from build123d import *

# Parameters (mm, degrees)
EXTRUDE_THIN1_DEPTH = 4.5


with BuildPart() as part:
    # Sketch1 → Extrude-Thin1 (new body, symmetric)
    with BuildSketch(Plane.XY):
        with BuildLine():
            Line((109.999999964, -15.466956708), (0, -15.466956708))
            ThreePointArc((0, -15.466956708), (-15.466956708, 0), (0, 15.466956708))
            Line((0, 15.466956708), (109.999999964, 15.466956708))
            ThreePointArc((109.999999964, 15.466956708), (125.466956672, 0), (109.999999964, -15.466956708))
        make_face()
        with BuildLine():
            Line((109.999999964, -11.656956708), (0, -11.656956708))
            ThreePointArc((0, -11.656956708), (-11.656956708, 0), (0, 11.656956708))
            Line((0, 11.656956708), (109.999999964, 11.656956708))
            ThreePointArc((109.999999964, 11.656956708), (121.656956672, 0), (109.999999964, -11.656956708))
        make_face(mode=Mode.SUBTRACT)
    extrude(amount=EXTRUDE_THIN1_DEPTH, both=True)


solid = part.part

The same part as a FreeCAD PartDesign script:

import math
import FreeCAD as App
import Part
import Sketcher
Q = App.Units.Quantity

doc = App.newDocument("Part")
body = doc.addObject("PartDesign::Body", "Body")

sketch1 = body.newObject("Sketcher::SketchObject", "Sketch")
sketch1.AttachmentSupport = (doc.getObject("XY_Plane"), [""])
sketch1.MapMode = "FlatFace"
sketch1.addGeometry([
    Part.LineSegment(App.Vector(0, -15, 0), App.Vector(110, -15, 0)),
    Part.ArcOfCircle(Part.Circle(App.Vector(110, 0, 0), App.Vector(0, 0, 1), 15), math.radians(-90), math.radians(90)),
    Part.LineSegment(App.Vector(110, 15, 0), App.Vector(0, 15, 0)),
    Part.ArcOfCircle(Part.Circle(App.Vector(0, 0, 0), App.Vector(0, 0, 1), 15), math.radians(90), math.radians(270)),
    Part.LineSegment(App.Vector(110, -12, 0), App.Vector(0, -12, 0)),
    Part.ArcOfCircle(Part.Circle(App.Vector(0, 0, 0), App.Vector(0, 0, 1), 12), math.radians(90), math.radians(270)),
    Part.LineSegment(App.Vector(0, 12, 0), App.Vector(110, 12, 0)),
    Part.ArcOfCircle(Part.Circle(App.Vector(110, 0, 0), App.Vector(0, 0, 1), 12), math.radians(-90), math.radians(90)),
], False)
sketch1.addConstraint([
    Sketcher.Constraint("Tangent", 0, 2, 1, 1),
    Sketcher.Constraint("Tangent", 1, 2, 2, 1),
    Sketcher.Constraint("Tangent", 2, 2, 3, 1),
    Sketcher.Constraint("Tangent", 3, 2, 0, 1),
    Sketcher.Constraint("Tangent", 4, 2, 5, 2),
    Sketcher.Constraint("Tangent", 5, 1, 6, 1),
    Sketcher.Constraint("Tangent", 6, 2, 7, 2),
    Sketcher.Constraint("Tangent", 7, 1, 4, 1),
    Sketcher.Constraint("Horizontal", 0),
    Sketcher.Constraint("Horizontal", 2),
    Sketcher.Constraint("Horizontal", 4),
    Sketcher.Constraint("Horizontal", 6),
    Sketcher.Constraint("Coincident", 3, 3, -1, 1),
    Sketcher.Constraint("Coincident", 5, 3, -1, 1),
    Sketcher.Constraint("Vertical", 7, 3, 0, 2),
    Sketcher.Constraint("DistanceX", 0, 1, 0, 2, Q("110 mm")),
    Sketcher.Constraint("DistanceY", 3, 2, 4, 2, Q("3.81 mm")),
    Sketcher.Constraint("Radius", 1, Q("15.466957 mm")),
])
pad1 = body.newObject("PartDesign::Pad", "Pad")
pad1.Profile = sketch1
pad1.Length = 9
pad1.Midplane = True

doc.recompute()
